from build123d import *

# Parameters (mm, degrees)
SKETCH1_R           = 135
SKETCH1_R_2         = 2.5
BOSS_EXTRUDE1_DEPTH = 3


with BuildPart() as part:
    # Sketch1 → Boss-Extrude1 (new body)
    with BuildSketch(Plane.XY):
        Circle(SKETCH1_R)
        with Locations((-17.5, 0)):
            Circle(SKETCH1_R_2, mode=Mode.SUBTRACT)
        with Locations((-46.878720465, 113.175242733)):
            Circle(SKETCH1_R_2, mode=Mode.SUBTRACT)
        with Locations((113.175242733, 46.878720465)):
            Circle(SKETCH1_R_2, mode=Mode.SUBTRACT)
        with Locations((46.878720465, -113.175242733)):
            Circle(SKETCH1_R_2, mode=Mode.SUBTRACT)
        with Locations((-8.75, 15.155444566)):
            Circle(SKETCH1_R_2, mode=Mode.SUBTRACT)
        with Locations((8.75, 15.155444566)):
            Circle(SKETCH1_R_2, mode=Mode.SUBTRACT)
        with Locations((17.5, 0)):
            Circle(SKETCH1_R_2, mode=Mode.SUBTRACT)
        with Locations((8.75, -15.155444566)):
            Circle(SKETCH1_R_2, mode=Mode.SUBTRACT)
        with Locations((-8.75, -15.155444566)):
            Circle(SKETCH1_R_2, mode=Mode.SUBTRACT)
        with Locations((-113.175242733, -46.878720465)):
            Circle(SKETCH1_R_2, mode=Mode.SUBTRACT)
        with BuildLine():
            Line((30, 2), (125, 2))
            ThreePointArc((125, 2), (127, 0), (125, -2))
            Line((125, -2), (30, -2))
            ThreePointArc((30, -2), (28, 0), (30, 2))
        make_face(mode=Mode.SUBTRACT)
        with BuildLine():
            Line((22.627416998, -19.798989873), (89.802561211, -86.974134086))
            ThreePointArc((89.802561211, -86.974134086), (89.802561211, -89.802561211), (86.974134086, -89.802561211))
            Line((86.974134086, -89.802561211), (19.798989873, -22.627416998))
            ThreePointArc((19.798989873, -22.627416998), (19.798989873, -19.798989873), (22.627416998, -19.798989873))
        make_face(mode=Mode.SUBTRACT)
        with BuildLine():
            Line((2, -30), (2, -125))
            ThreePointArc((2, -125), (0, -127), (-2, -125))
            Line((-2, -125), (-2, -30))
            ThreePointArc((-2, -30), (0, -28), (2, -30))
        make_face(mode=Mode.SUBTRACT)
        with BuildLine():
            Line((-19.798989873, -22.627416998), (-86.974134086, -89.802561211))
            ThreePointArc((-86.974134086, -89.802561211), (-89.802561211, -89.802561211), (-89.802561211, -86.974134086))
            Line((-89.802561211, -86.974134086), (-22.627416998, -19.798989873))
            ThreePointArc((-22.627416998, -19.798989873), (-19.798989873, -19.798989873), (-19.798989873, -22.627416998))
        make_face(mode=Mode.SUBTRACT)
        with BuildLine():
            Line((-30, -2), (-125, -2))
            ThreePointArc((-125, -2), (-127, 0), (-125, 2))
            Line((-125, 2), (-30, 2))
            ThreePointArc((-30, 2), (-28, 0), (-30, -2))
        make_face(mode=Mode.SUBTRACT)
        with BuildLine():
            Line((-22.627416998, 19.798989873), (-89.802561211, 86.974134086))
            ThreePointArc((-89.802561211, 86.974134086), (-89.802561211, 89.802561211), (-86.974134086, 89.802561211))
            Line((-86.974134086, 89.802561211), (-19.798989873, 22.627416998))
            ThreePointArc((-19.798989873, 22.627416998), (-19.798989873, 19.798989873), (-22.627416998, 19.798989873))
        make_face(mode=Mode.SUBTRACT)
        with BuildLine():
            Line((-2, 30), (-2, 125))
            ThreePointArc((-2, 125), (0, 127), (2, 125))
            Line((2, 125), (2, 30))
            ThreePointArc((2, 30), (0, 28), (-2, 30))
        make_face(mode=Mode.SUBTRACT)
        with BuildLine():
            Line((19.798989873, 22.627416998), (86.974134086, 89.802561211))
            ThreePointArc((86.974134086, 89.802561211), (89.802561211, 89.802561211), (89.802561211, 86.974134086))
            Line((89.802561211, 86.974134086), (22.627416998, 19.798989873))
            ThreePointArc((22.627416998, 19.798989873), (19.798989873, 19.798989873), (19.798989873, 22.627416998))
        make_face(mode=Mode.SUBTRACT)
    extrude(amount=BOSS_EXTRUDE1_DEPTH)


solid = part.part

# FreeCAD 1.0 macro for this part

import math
import FreeCAD as App
import Part
import Sketcher

V = App.Vector

doc = App.newDocument("Part")
body = doc.addObject("PartDesign::Body", "Body")

# Sketch on XY plane
sketch1 = body.newObject("Sketcher::SketchObject", "Sketch")
sketch1.AttachmentSupport = (doc.getObject("XY_Plane"), [""])
sketch1.MapMode = "FlatFace"
sketch1.addGeometry([
    Part.Circle(V(0, 0, 0), V(0, 0, 1), 135),  # 0
    Part.Circle(V(-113.2, -46.9, 0), V(0, 0, 1), 2.5),  # 1
    Part.ArcOfCircle(Part.Circle(V(-21.2, -21.2, 0), V(0, 0, 1), 2), math.radians(-45), math.radians(135)),  # 2
    Part.LineSegment(V(-19.8, -22.6, 0), V(-87, -89.8, 0)),  # 3
    Part.ArcOfCircle(Part.Circle(V(-88.4, -88.4, 0), V(0, 0, 1), 2), math.radians(135), math.radians(315)),  # 4
    Part.LineSegment(V(-89.8, -87, 0), V(-22.6, -19.8, 0)),  # 5
    Part.Circle(V(-8.8, -15.2, 0), V(0, 0, 1), 2.5),  # 6
    Part.Circle(V(46.9, -113.2, 0), V(0, 0, 1), 2.5),  # 7
    Part.ArcOfCircle(Part.Circle(V(0, -30, 0), V(0, 0, 1), 2), math.radians(0), math.radians(180)),  # 8
    Part.LineSegment(V(2, -30, 0), V(2, -125, 0)),  # 9
    Part.ArcOfCircle(Part.Circle(V(0, -125, 0), V(0, 0, 1), 2), math.radians(180), math.radians(360)),  # 10
    Part.LineSegment(V(-2, -125, 0), V(-2, -30, 0)),  # 11
    Part.ArcOfCircle(Part.Circle(V(21.2, -21.2, 0), V(0, 0, 1), 2), math.radians(45), math.radians(225)),  # 12
    Part.LineSegment(V(22.6, -19.8, 0), V(89.8, -87, 0)),  # 13
    Part.ArcOfCircle(Part.Circle(V(88.4, -88.4, 0), V(0, 0, 1), 2), math.radians(-135), math.radians(45)),  # 14
    Part.LineSegment(V(87, -89.8, 0), V(19.8, -22.6, 0)),  # 15
    Part.Circle(V(8.8, -15.2, 0), V(0, 0, 1), 2.5),  # 16
    Part.ArcOfCircle(Part.Circle(V(-30, 0, 0), V(0, 0, 1), 2), math.radians(-90), math.radians(90)),  # 17
    Part.LineSegment(V(-30, -2, 0), V(-125, -2, 0)),  # 18
    Part.ArcOfCircle(Part.Circle(V(-125, 0, 0), V(0, 0, 1), 2), math.radians(90), math.radians(270)),  # 19
    Part.LineSegment(V(-125, 2, 0), V(-30, 2, 0)),  # 20
    Part.Circle(V(-17.5, 0, 0), V(0, 0, 1), 2.5),  # 21
    Part.Circle(V(-8.8, 15.2, 0), V(0, 0, 1), 2.5),  # 22
    Part.ArcOfCircle(Part.Circle(V(-21.2, 21.2, 0), V(0, 0, 1), 2), math.radians(-135), math.radians(45)),  # 23
    Part.LineSegment(V(-22.6, 19.8, 0), V(-89.8, 87, 0)),  # 24
    Part.ArcOfCircle(Part.Circle(V(-88.4, 88.4, 0), V(0, 0, 1), 2), math.radians(45), math.radians(225)),  # 25
    Part.LineSegment(V(-87, 89.8, 0), V(-19.8, 22.6, 0)),  # 26
    Part.Circle(V(-46.9, 113.2, 0), V(0, 0, 1), 2.5),  # 27
    Part.Circle(V(8.8, 15.2, 0), V(0, 0, 1), 2.5),  # 28
    Part.Circle(V(17.5, 0, 0), V(0, 0, 1), 2.5),  # 29
    Part.ArcOfCircle(Part.Circle(V(21.2, 21.2, 0), V(0, 0, 1), 2), math.radians(135), math.radians(315)),  # 30
    Part.LineSegment(V(19.8, 22.6, 0), V(87, 89.8, 0)),  # 31
    Part.ArcOfCircle(Part.Circle(V(88.4, 88.4, 0), V(0, 0, 1), 2), math.radians(-45), math.radians(135)),  # 32
    Part.LineSegment(V(89.8, 87, 0), V(22.6, 19.8, 0)),  # 33
    Part.ArcOfCircle(Part.Circle(V(30, 0, 0), V(0, 0, 1), 2), math.radians(90), math.radians(270)),  # 34
    Part.LineSegment(V(30, 2, 0), V(125, 2, 0)),  # 35
    Part.ArcOfCircle(Part.Circle(V(125, 0, 0), V(0, 0, 1), 2), math.radians(-90), math.radians(90)),  # 36
    Part.LineSegment(V(125, -2, 0), V(30, -2, 0)),  # 37
    Part.Circle(V(113.2, 46.9, 0), V(0, 0, 1), 2.5),  # 38
    Part.ArcOfCircle(Part.Circle(V(0, 30, 0), V(0, 0, 1), 2), math.radians(180), math.radians(360)),  # 39
    Part.LineSegment(V(-2, 30, 0), V(-2, 125, 0)),  # 40
    Part.ArcOfCircle(Part.Circle(V(0, 125, 0), V(0, 0, 1), 2), math.radians(0), math.radians(180)),  # 41
    Part.LineSegment(V(2, 125, 0), V(2, 30, 0)),  # 42
], False)
sketch1.addConstraint([
    Sketcher.Constraint("Tangent", 2, 1, 3, 1),
    Sketcher.Constraint("Tangent", 3, 2, 4, 2),
    Sketcher.Constraint("Tangent", 4, 1, 5, 1),
    Sketcher.Constraint("Tangent", 5, 2, 2, 2),
    Sketcher.Constraint("Tangent", 8, 1, 9, 1),
    Sketcher.Constraint("Tangent", 9, 2, 10, 2),
    Sketcher.Constraint("Tangent", 10, 1, 11, 1),
    Sketcher.Constraint("Tangent", 11, 2, 8, 2),
    Sketcher.Constraint("Tangent", 12, 1, 13, 1),
    Sketcher.Constraint("Tangent", 13, 2, 14, 2),
    Sketcher.Constraint("Tangent", 14, 1, 15, 1),
    Sketcher.Constraint("Tangent", 15, 2, 12, 2),
    Sketcher.Constraint("Tangent", 17, 1, 18, 1),
    Sketcher.Constraint("Tangent", 18, 2, 19, 2),
    Sketcher.Constraint("Tangent", 19, 1, 20, 1),
    Sketcher.Constraint("Tangent", 20, 2, 17, 2),
    Sketcher.Constraint("Tangent", 23, 1, 24, 1),
    Sketcher.Constraint("Tangent", 24, 2, 25, 2),
    Sketcher.Constraint("Tangent", 25, 1, 26, 1),
    Sketcher.Constraint("Tangent", 26, 2, 23, 2),
    Sketcher.Constraint("Tangent", 30, 1, 31, 1),
    Sketcher.Constraint("Tangent", 31, 2, 32, 2),
    Sketcher.Constraint("Tangent", 32, 1, 33, 1),
    Sketcher.Constraint("Tangent", 33, 2, 30, 2),
    Sketcher.Constraint("Tangent", 34, 1, 35, 1),
    Sketcher.Constraint("Tangent", 35, 2, 36, 2),
    Sketcher.Constraint("Tangent", 36, 1, 37, 1),
    Sketcher.Constraint("Tangent", 37, 2, 34, 2),
    Sketcher.Constraint("Tangent", 39, 1, 40, 1),
    Sketcher.Constraint("Tangent", 40, 2, 41, 2),
    Sketcher.Constraint("Tangent", 41, 1, 42, 1),
    Sketcher.Constraint("Tangent", 42, 2, 39, 2),
    Sketcher.Constraint("Vertical", 9),
    Sketcher.Constraint("Vertical", 11),
    Sketcher.Constraint("Horizontal", 18),
    Sketcher.Constraint("Horizontal", 20),
    Sketcher.Constraint("Horizontal", 35),
    Sketcher.Constraint("Horizontal", 37),
    Sketcher.Constraint("Vertical", 40),
    Sketcher.Constraint("Vertical", 42),
    Sketcher.Constraint("Coincident", 0, 3, -1, 1),
    Sketcher.Constraint("Equal", 2, 4),
    Sketcher.Constraint("Equal", 1, 6),
    Sketcher.Constraint("Equal", 6, 7),
    Sketcher.Constraint("Equal", 4, 8),
    Sketcher.Constraint("Equal", 10, 12),
    Sketcher.Constraint("Equal", 12, 14),
    Sketcher.Constraint("Equal", 7, 16),
    Sketcher.Constraint("Equal", 14, 17),
    Sketcher.Constraint("Equal", 16, 21),
    Sketcher.Constraint("Equal", 21, 22),
    Sketcher.Constraint("Equal", 19, 23),
    Sketcher.Constraint("Equal", 23, 25),
    Sketcher.Constraint("Equal", 22, 27),
    Sketcher.Constraint("Equal", 27, 28),
    Sketcher.Constraint("Equal", 28, 29),
    Sketcher.Constraint("Equal", 25, 30),
    Sketcher.Constraint("Equal", 30, 32),
    Sketcher.Constraint("Equal", 32, 34),
    Sketcher.Constraint("Equal", 29, 38),
    Sketcher.Constraint("Equal", 36, 39),
    Sketcher.Constraint("Symmetric", 16, 3, 22, 3, -1, 1),
    Sketcher.Constraint("Symmetric", 12, 3, 23, 3, -1, 1),
    Sketcher.Constraint("Symmetric", 14, 3, 25, 3, -1, 1),
    Sketcher.Constraint("Symmetric", 7, 3, 27, 3, -1, 1),
    Sketcher.Constraint("Symmetric", 6, 3, 28, 3, -1, 1),
    Sketcher.Constraint("Symmetric", 21, 3, 29, 3, -1, 1),
    Sketcher.Constraint("Symmetric", 2, 3, 30, 3, -1, 1),
    Sketcher.Constraint("Symmetric", 4, 3, 32, 3, -1, 1),
    Sketcher.Constraint("Symmetric", 17, 3, 34, 3, -1, 1),
    Sketcher.Constraint("Symmetric", 1, 3, 38, 3, -1, 1),
    Sketcher.Constraint("Symmetric", 8, 3, 39, 3, -1, 1),
    Sketcher.Constraint("Symmetric", 2, 3, 12, 3, -2),
    Sketcher.Constraint("Symmetric", 4, 3, 14, 3, -2),
    Sketcher.Constraint("Symmetric", 6, 3, 16, 3, -2),
    Sketcher.Constraint("Symmetric", 19, 3, 36, 3, -2),
    Sketcher.Constraint("Symmetric", 10, 3, 41, 3, -1),
    Sketcher.Constraint("PointOnObject", 21, 3, -1),
    Sketcher.Constraint("Perpendicular", 5, 13),
    Sketcher.Constraint("Equal", 37, 9),
    Sketcher.Constraint("Diameter", 0, 270.0),
    Sketcher.Constraint("Diameter", 1, 5.0),
    Sketcher.Constraint("Radius", 2, 2.0),
    Sketcher.Constraint("DistanceX", 18, 2, 18, 1, 95.0),
    Sketcher.Constraint("Distance", 3, 95.0),
    Sketcher.Constraint("DistanceY", 8, 3, -1, 1, 30.0),
    Sketcher.Constraint("DistanceX", 17, 3, -1, 1, 30.0),
    Sketcher.Constraint("DistanceX", 21, 3, -1, 1, 17.5),
    Sketcher.Constraint("DistanceX", 6, 3, 16, 3, 17.5),
    Sketcher.Constraint("DistanceY", 7, 3, 6, 3, 98.019798),
    Sketcher.Constraint("DistanceY", 1, 3, -1, 1, 46.87872),
    Sketcher.Constraint("DistanceX", -1, 1, 7, 3, 46.87872),
    Sketcher.Constraint("DistanceX", 2, 1, -1, 1, 19.79899),
    Sketcher.Constraint("DistanceY", 3, 2, -1, 1, 89.802561),
    Sketcher.Constraint("DistanceX", 1, 3, 2, 3, 91.962039),
    Sketcher.Constraint("DistanceY", 2, 3, 6, 3, 6.057759),
])
pad1 = body.newObject("PartDesign::Pad", "Pad")
pad1.Profile = sketch1
pad1.Length = 3

doc.recompute()
